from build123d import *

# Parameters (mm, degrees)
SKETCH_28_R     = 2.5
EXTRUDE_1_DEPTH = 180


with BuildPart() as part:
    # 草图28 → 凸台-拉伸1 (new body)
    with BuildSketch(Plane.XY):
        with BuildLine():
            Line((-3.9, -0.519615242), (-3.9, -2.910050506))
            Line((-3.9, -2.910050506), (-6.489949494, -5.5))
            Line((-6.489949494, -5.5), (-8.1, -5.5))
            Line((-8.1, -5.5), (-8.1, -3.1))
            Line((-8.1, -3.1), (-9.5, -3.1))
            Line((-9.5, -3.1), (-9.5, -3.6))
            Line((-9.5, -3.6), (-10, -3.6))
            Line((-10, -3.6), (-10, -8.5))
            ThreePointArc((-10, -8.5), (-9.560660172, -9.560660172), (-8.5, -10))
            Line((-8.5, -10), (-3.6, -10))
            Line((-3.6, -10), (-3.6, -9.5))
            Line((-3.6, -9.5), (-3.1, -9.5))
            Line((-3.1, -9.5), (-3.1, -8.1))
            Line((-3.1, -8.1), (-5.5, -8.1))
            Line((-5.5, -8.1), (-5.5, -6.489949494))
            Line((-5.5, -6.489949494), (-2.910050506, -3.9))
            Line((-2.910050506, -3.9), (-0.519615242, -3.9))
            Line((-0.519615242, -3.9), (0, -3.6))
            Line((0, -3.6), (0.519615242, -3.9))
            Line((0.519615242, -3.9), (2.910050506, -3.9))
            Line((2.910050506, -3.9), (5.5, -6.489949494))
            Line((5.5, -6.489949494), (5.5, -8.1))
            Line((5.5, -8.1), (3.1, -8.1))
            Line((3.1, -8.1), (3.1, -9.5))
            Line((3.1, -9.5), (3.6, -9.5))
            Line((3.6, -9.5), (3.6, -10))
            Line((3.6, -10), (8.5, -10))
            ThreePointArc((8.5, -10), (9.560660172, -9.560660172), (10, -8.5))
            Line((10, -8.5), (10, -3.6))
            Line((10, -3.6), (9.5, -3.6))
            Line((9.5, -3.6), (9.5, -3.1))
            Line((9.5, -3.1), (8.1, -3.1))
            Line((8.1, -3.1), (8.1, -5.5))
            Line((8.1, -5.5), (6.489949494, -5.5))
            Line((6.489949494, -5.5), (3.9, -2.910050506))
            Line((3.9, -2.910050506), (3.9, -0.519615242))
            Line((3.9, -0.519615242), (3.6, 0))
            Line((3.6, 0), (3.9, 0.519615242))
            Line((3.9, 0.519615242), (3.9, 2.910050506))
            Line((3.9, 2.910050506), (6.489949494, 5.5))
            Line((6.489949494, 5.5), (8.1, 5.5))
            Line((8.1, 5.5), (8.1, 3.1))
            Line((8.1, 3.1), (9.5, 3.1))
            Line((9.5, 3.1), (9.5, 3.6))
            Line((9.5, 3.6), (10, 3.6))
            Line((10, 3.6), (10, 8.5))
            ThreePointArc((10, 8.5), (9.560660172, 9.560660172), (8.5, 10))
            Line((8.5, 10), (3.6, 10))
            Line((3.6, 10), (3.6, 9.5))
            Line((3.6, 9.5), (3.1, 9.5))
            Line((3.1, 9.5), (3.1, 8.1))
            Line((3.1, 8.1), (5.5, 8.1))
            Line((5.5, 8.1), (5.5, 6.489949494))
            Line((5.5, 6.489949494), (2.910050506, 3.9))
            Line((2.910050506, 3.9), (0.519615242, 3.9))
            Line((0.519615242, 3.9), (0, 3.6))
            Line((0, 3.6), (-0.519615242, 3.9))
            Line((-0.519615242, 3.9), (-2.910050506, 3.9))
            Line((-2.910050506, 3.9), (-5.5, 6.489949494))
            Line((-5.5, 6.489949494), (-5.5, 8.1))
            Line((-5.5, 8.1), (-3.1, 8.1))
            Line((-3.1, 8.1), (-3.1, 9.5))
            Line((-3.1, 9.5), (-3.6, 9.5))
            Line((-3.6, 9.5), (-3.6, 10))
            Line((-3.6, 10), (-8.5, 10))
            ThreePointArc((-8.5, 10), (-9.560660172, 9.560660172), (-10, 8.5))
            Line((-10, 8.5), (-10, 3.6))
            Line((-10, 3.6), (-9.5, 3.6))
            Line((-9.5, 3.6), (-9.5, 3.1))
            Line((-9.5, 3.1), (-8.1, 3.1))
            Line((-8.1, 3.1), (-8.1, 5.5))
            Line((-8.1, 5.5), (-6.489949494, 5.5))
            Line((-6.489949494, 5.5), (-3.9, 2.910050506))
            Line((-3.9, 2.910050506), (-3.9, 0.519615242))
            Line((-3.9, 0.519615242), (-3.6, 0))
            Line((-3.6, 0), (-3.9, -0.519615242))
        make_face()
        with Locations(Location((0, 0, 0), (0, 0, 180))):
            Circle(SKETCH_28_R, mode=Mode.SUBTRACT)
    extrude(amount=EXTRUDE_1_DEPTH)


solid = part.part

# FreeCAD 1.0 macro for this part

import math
import FreeCAD as App
import Part
import Sketcher

V = App.Vector
Q = App.Units.Quantity

doc = App.newDocument("Part")
body = doc.addObject("PartDesign::Body", "Body")

# Sketch on XY plane
sketch1 = body.newObject("Sketcher::SketchObject", "Sketch")
sketch1.AttachmentSupport = (doc.getObject("XY_Plane"), [""])
sketch1.MapMode = "FlatFace"
sketch1.addGeometry([
    Part.LineSegment(V(-3.9, -0.5, 0), V(-3.9, -2.9, 0)),  # 0
    Part.LineSegment(V(-3.9, -2.9, 0), V(-6.5, -5.5, 0)),  # 1
    Part.LineSegment(V(-6.5, -5.5, 0), V(-8.1, -5.5, 0)),  # 2
    Part.LineSegment(V(-8.1, -5.5, 0), V(-8.1, -3.1, 0)),  # 3
    Part.LineSegment(V(-8.1, -3.1, 0), V(-9.5, -3.1, 0)),  # 4
    Part.LineSegment(V(-9.5, -3.1, 0), V(-9.5, -3.6, 0)),  # 5
    Part.LineSegment(V(-9.5, -3.6, 0), V(-10, -3.6, 0)),  # 6
    Part.LineSegment(V(-10, -3.6, 0), V(-10, -8.5, 0)),  # 7
    Part.ArcOfCircle(Part.Circle(V(-8.5, -8.5, 0), V(0, 0, 1), 1.5), math.radians(180), math.radians(270)),  # 8
    Part.LineSegment(V(-8.5, -10, 0), V(-3.6, -10, 0)),  # 9
    Part.LineSegment(V(-3.6, -10, 0), V(-3.6, -9.5, 0)),  # 10
    Part.LineSegment(V(-3.6, -9.5, 0), V(-3.1, -9.5, 0)),  # 11
    Part.LineSegment(V(-3.1, -9.5, 0), V(-3.1, -8.1, 0)),  # 12
    Part.LineSegment(V(-3.1, -8.1, 0), V(-5.5, -8.1, 0)),  # 13
    Part.LineSegment(V(-5.5, -8.1, 0), V(-5.5, -6.5, 0)),  # 14
    Part.LineSegment(V(-5.5, -6.5, 0), V(-2.9, -3.9, 0)),  # 15
    Part.LineSegment(V(-2.9, -3.9, 0), V(-0.5, -3.9, 0)),  # 16
    Part.LineSegment(V(-0.5, -3.9, 0), V(0, -3.6, 0)),  # 17
    Part.LineSegment(V(0, -3.6, 0), V(0.5, -3.9, 0)),  # 18
    Part.LineSegment(V(0.5, -3.9, 0), V(2.9, -3.9, 0)),  # 19
    Part.LineSegment(V(2.9, -3.9, 0), V(5.5, -6.5, 0)),  # 20
    Part.LineSegment(V(5.5, -6.5, 0), V(5.5, -8.1, 0)),  # 21
    Part.LineSegment(V(5.5, -8.1, 0), V(3.1, -8.1, 0)),  # 22
    Part.LineSegment(V(3.1, -8.1, 0), V(3.1, -9.5, 0)),  # 23
    Part.LineSegment(V(3.1, -9.5, 0), V(3.6, -9.5, 0)),  # 24
    Part.LineSegment(V(3.6, -9.5, 0), V(3.6, -10, 0)),  # 25
    Part.LineSegment(V(3.6, -10, 0), V(8.5, -10, 0)),  # 26
    Part.ArcOfCircle(Part.Circle(V(8.5, -8.5, 0), V(0, 0, 1), 1.5), math.radians(-90), math.radians(0)),  # 27
    Part.LineSegment(V(10, -8.5, 0), V(10, -3.6, 0)),  # 28
    Part.LineSegment(V(10, -3.6, 0), V(9.5, -3.6, 0)),  # 29
    Part.LineSegment(V(9.5, -3.6, 0), V(9.5, -3.1, 0)),  # 30
    Part.LineSegment(V(9.5, -3.1, 0), V(8.1, -3.1, 0)),  # 31
    Part.LineSegment(V(8.1, -3.1, 0), V(8.1, -5.5, 0)),  # 32
    Part.LineSegment(V(8.1, -5.5, 0), V(6.5, -5.5, 0)),  # 33
    Part.LineSegment(V(6.5, -5.5, 0), V(3.9, -2.9, 0)),  # 34
    Part.LineSegment(V(3.9, -2.9, 0), V(3.9, -0.5, 0)),  # 35
    Part.LineSegment(V(3.9, -0.5, 0), V(3.6, 0, 0)),  # 36
    Part.LineSegment(V(3.6, 0, 0), V(3.9, 0.5, 0)),  # 37
    Part.LineSegment(V(3.9, 0.5, 0), V(3.9, 2.9, 0)),  # 38
    Part.LineSegment(V(3.9, 2.9, 0), V(6.5, 5.5, 0)),  # 39
    Part.LineSegment(V(6.5, 5.5, 0), V(8.1, 5.5, 0)),  # 40
    Part.LineSegment(V(8.1, 5.5, 0), V(8.1, 3.1, 0)),  # 41
    Part.LineSegment(V(8.1, 3.1, 0), V(9.5, 3.1, 0)),  # 42
    Part.LineSegment(V(9.5, 3.1, 0), V(9.5, 3.6, 0)),  # 43
    Part.LineSegment(V(9.5, 3.6, 0), V(10, 3.6, 0)),  # 44
    Part.LineSegment(V(10, 3.6, 0), V(10, 8.5, 0)),  # 45
    Part.ArcOfCircle(Part.Circle(V(8.5, 8.5, 0), V(0, 0, 1), 1.5), math.radians(0), math.radians(90)),  # 46
    Part.LineSegment(V(8.5, 10, 0), V(3.6, 10, 0)),  # 47
    Part.LineSegment(V(3.6, 10, 0), V(3.6, 9.5, 0)),  # 48
    Part.LineSegment(V(3.6, 9.5, 0), V(3.1, 9.5, 0)),  # 49
    Part.LineSegment(V(3.1, 9.5, 0), V(3.1, 8.1, 0)),  # 50
    Part.LineSegment(V(3.1, 8.1, 0), V(5.5, 8.1, 0)),  # 51
    Part.LineSegment(V(5.5, 8.1, 0), V(5.5, 6.5, 0)),  # 52
    Part.LineSegment(V(5.5, 6.5, 0), V(2.9, 3.9, 0)),  # 53
    Part.LineSegment(V(2.9, 3.9, 0), V(0.5, 3.9, 0)),  # 54
    Part.LineSegment(V(0.5, 3.9, 0), V(0, 3.6, 0)),  # 55
    Part.LineSegment(V(0, 3.6, 0), V(-0.5, 3.9, 0)),  # 56
    Part.LineSegment(V(-0.5, 3.9, 0), V(-2.9, 3.9, 0)),  # 57
    Part.LineSegment(V(-2.9, 3.9, 0), V(-5.5, 6.5, 0)),  # 58
    Part.LineSegment(V(-5.5, 6.5, 0), V(-5.5, 8.1, 0)),  # 59
    Part.LineSegment(V(-5.5, 8.1, 0), V(-3.1, 8.1, 0)),  # 60
    Part.LineSegment(V(-3.1, 8.1, 0), V(-3.1, 9.5, 0)),  # 61
    Part.LineSegment(V(-3.1, 9.5, 0), V(-3.6, 9.5, 0)),  # 62
    Part.LineSegment(V(-3.6, 9.5, 0), V(-3.6, 10, 0)),  # 63
    Part.LineSegment(V(-3.6, 10, 0), V(-8.5, 10, 0)),  # 64
    Part.ArcOfCircle(Part.Circle(V(-8.5, 8.5, 0), V(0, 0, 1), 1.5), math.radians(90), math.radians(180)),  # 65
    Part.LineSegment(V(-10, 8.5, 0), V(-10, 3.6, 0)),  # 66
    Part.LineSegment(V(-10, 3.6, 0), V(-9.5, 3.6, 0)),  # 67
    Part.LineSegment(V(-9.5, 3.6, 0), V(-9.5, 3.1, 0)),  # 68
    Part.LineSegment(V(-9.5, 3.1, 0), V(-8.1, 3.1, 0)),  # 69
    Part.LineSegment(V(-8.1, 3.1, 0), V(-8.1, 5.5, 0)),  # 70
    Part.LineSegment(V(-8.1, 5.5, 0), V(-6.5, 5.5, 0)),  # 71
    Part.LineSegment(V(-6.5, 5.5, 0), V(-3.9, 2.9, 0)),  # 72
    Part.LineSegment(V(-3.9, 2.9, 0), V(-3.9, 0.5, 0)),  # 73
    Part.LineSegment(V(-3.9, 0.5, 0), V(-3.6, 0, 0)),  # 74
    Part.LineSegment(V(-3.6, 0, 0), V(-3.9, -0.5, 0)),  # 75
    Part.Circle(V(0, 0, 0), V(0, 0, 1), 2.5),  # 76
], False)
sketch1.addConstraint([
    Sketcher.Constraint("Coincident", 0, 2, 1, 1),
    Sketcher.Constraint("Coincident", 1, 2, 2, 1),
    Sketcher.Constraint("Coincident", 2, 2, 3, 1),
    Sketcher.Constraint("Coincident", 3, 2, 4, 1),
    Sketcher.Constraint("Coincident", 4, 2, 5, 1),
    Sketcher.Constraint("Coincident", 5, 2, 6, 1),
    Sketcher.Constraint("Coincident", 6, 2, 7, 1),
    Sketcher.Constraint("Tangent", 7, 2, 8, 1),
    Sketcher.Constraint("Tangent", 8, 2, 9, 1),
    Sketcher.Constraint("Coincident", 9, 2, 10, 1),
    Sketcher.Constraint("Coincident", 10, 2, 11, 1),
    Sketcher.Constraint("Coincident", 11, 2, 12, 1),
    Sketcher.Constraint("Coincident", 12, 2, 13, 1),
    Sketcher.Constraint("Coincident", 13, 2, 14, 1),
    Sketcher.Constraint("Coincident", 14, 2, 15, 1),
    Sketcher.Constraint("Coincident", 15, 2, 16, 1),
    Sketcher.Constraint("Coincident", 16, 2, 17, 1),
    Sketcher.Constraint("Coincident", 17, 2, 18, 1),
    Sketcher.Constraint("Coincident", 18, 2, 19, 1),
    Sketcher.Constraint("Coincident", 19, 2, 20, 1),
    Sketcher.Constraint("Coincident", 20, 2, 21, 1),
    Sketcher.Constraint("Coincident", 21, 2, 22, 1),
    Sketcher.Constraint("Coincident", 22, 2, 23, 1),
    Sketcher.Constraint("Coincident", 23, 2, 24, 1),
    Sketcher.Constraint("Coincident", 24, 2, 25, 1),
    Sketcher.Constraint("Coincident", 25, 2, 26, 1),
    Sketcher.Constraint("Tangent", 26, 2, 27, 1),
    Sketcher.Constraint("Tangent", 27, 2, 28, 1),
    Sketcher.Constraint("Coincident", 28, 2, 29, 1),
    Sketcher.Constraint("Coincident", 29, 2, 30, 1),
    Sketcher.Constraint("Coincident", 30, 2, 31, 1),
    Sketcher.Constraint("Coincident", 31, 2, 32, 1),
    Sketcher.Constraint("Coincident", 32, 2, 33, 1),
    Sketcher.Constraint("Coincident", 33, 2, 34, 1),
    Sketcher.Constraint("Coincident", 34, 2, 35, 1),
    Sketcher.Constraint("Coincident", 35, 2, 36, 1),
    Sketcher.Constraint("Coincident", 36, 2, 37, 1),
    Sketcher.Constraint("Coincident", 37, 2, 38, 1),
    Sketcher.Constraint("Coincident", 38, 2, 39, 1),
    Sketcher.Constraint("Coincident", 39, 2, 40, 1),
    Sketcher.Constraint("Coincident", 40, 2, 41, 1),
    Sketcher.Constraint("Coincident", 41, 2, 42, 1),
    Sketcher.Constraint("Coincident", 42, 2, 43, 1),
    Sketcher.Constraint("Coincident", 43, 2, 44, 1),
    Sketcher.Constraint("Coincident", 44, 2, 45, 1),
    Sketcher.Constraint("Tangent", 45, 2, 46, 1),
    Sketcher.Constraint("Tangent", 46, 2, 47, 1),
    Sketcher.Constraint("Coincident", 47, 2, 48, 1),
    Sketcher.Constraint("Coincident", 48, 2, 49, 1),
    Sketcher.Constraint("Coincident", 49, 2, 50, 1),
    Sketcher.Constraint("Coincident", 50, 2, 51, 1),
    Sketcher.Constraint("Coincident", 51, 2, 52, 1),
    Sketcher.Constraint("Coincident", 52, 2, 53, 1),
    Sketcher.Constraint("Coincident", 53, 2, 54, 1),
    Sketcher.Constraint("Coincident", 54, 2, 55, 1),
    Sketcher.Constraint("Coincident", 55, 2, 56, 1),
    Sketcher.Constraint("Coincident", 56, 2, 57, 1),
    Sketcher.Constraint("Coincident", 57, 2, 58, 1),
    Sketcher.Constraint("Coincident", 58, 2, 59, 1),
    Sketcher.Constraint("Coincident", 59, 2, 60, 1),
    Sketcher.Constraint("Coincident", 60, 2, 61, 1),
    Sketcher.Constraint("Coincident", 61, 2, 62, 1),
    Sketcher.Constraint("Coincident", 62, 2, 63, 1),
    Sketcher.Constraint("Coincident", 63, 2, 64, 1),
    Sketcher.Constraint("Tangent", 64, 2, 65, 1),
    Sketcher.Constraint("Tangent", 65, 2, 66, 1),
    Sketcher.Constraint("Coincident", 66, 2, 67, 1),
    Sketcher.Constraint("Coincident", 67, 2, 68, 1),
    Sketcher.Constraint("Coincident", 68, 2, 69, 1),
    Sketcher.Constraint("Coincident", 69, 2, 70, 1),
    Sketcher.Constraint("Coincident", 70, 2, 71, 1),
    Sketcher.Constraint("Coincident", 71, 2, 72, 1),
    Sketcher.Constraint("Coincident", 72, 2, 73, 1),
    Sketcher.Constraint("Coincident", 73, 2, 74, 1),
    Sketcher.Constraint("Coincident", 74, 2, 75, 1),
    Sketcher.Constraint("Coincident", 75, 2, 0, 1),
    Sketcher.Constraint("Vertical", 0),
    Sketcher.Constraint("Horizontal", 2),
    Sketcher.Constraint("Vertical", 3),
    Sketcher.Constraint("Horizontal", 4),
    Sketcher.Constraint("Vertical", 5),
    Sketcher.Constraint("Horizontal", 6),
    Sketcher.Constraint("Vertical", 7),
    Sketcher.Constraint("Horizontal", 9),
    Sketcher.Constraint("Vertical", 10),
    Sketcher.Constraint("Horizontal", 11),
    Sketcher.Constraint("Vertical", 12),
    Sketcher.Constraint("Horizontal", 13),
    Sketcher.Constraint("Vertical", 14),
    Sketcher.Constraint("Horizontal", 16),
    Sketcher.Constraint("Horizontal", 19),
    Sketcher.Constraint("Vertical", 21),
    Sketcher.Constraint("Horizontal", 22),
    Sketcher.Constraint("Vertical", 23),
    Sketcher.Constraint("Horizontal", 24),
    Sketcher.Constraint("Vertical", 25),
    Sketcher.Constraint("Horizontal", 26),
    Sketcher.Constraint("Vertical", 28),
    Sketcher.Constraint("Horizontal", 29),
    Sketcher.Constraint("Vertical", 30),
    Sketcher.Constraint("Horizontal", 31),
    Sketcher.Constraint("Vertical", 32),
    Sketcher.Constraint("Horizontal", 33),
    Sketcher.Constraint("Vertical", 35),
    Sketcher.Constraint("Vertical", 38),
    Sketcher.Constraint("Horizontal", 40),
    Sketcher.Constraint("Vertical", 41),
    Sketcher.Constraint("Horizontal", 42),
    Sketcher.Constraint("Vertical", 43),
    Sketcher.Constraint("Horizontal", 44),
    Sketcher.Constraint("Vertical", 45),
    Sketcher.Constraint("Horizontal", 47),
    Sketcher.Constraint("Vertical", 48),
    Sketcher.Constraint("Horizontal", 49),
    Sketcher.Constraint("Vertical", 50),
    Sketcher.Constraint("Horizontal", 51),
    Sketcher.Constraint("Vertical", 52),
    Sketcher.Constraint("Horizontal", 54),
    Sketcher.Constraint("Horizontal", 57),
    Sketcher.Constraint("Vertical", 59),
    Sketcher.Constraint("Horizontal", 60),
    Sketcher.Constraint("Vertical", 61),
    Sketcher.Constraint("Horizontal", 62),
    Sketcher.Constraint("Vertical", 63),
    Sketcher.Constraint("Horizontal", 64),
    Sketcher.Constraint("Vertical", 66),
    Sketcher.Constraint("Horizontal", 67),
    Sketcher.Constraint("Vertical", 68),
    Sketcher.Constraint("Horizontal", 69),
    Sketcher.Constraint("Vertical", 70),
    Sketcher.Constraint("Horizontal", 71),
    Sketcher.Constraint("Vertical", 73),
    Sketcher.Constraint("Coincident", 76, 3, -1, 1),
    Sketcher.Constraint("Equal", 8, 27),
    Sketcher.Constraint("Equal", 27, 46),
    Sketcher.Constraint("Equal", 46, 65),
    Sketcher.Constraint("Symmetric", 8, 3, 46, 3, -1, 1),
    Sketcher.Constraint("Symmetric", 27, 3, 65, 3, -1, 1),
    Sketcher.Constraint("Symmetric", 0, 2, 38, 2, -1, 1),
    Sketcher.Constraint("Symmetric", 1, 2, 39, 2, -1, 1),
    Sketcher.Constraint("Symmetric", 3, 2, 41, 2, -1, 1),
    Sketcher.Constraint("Symmetric", 5, 2, 43, 2, -1, 1),
    Sketcher.Constraint("Symmetric", 10, 2, 48, 2, -1, 1),
    Sketcher.Constraint("Symmetric", 12, 2, 50, 2, -1, 1),
    Sketcher.Constraint("Symmetric", 14, 2, 52, 2, -1, 1),
    Sketcher.Constraint("Symmetric", 15, 2, 53, 2, -1, 1),
    Sketcher.Constraint("Symmetric", 17, 2, 55, 2, -1, 1),
    Sketcher.Constraint("Symmetric", 18, 2, 56, 2, -1, 1),
    Sketcher.Constraint("Symmetric", 20, 2, 58, 2, -1, 1),
    Sketcher.Constraint("Symmetric", 22, 2, 60, 2, -1, 1),
    Sketcher.Constraint("Symmetric", 24, 2, 62, 2, -1, 1),
    Sketcher.Constraint("Symmetric", 29, 2, 67, 2, -1, 1),
    Sketcher.Constraint("Symmetric", 31, 2, 69, 2, -1, 1),
    Sketcher.Constraint("Symmetric", 33, 2, 71, 2, -1, 1),
    Sketcher.Constraint("Symmetric", 34, 2, 72, 2, -1, 1),
    Sketcher.Constraint("Symmetric", 36, 2, 74, 2, -1, 1),
    Sketcher.Constraint("Symmetric", 8, 3, 27, 3, -2),
    Sketcher.Constraint("Symmetric", 16, 2, 18, 2, -2),
    Sketcher.Constraint("Symmetric", 14, 2, 20, 2, -2),
    Sketcher.Constraint("Symmetric", 12, 2, 22, 2, -2),
    Sketcher.Constraint("Symmetric", 10, 2, 24, 2, -2),
    Sketcher.Constraint("Symmetric", 5, 2, 29, 2, -2),
    Sketcher.Constraint("Symmetric", 3, 2, 31, 2, -2),
    Sketcher.Constraint("Symmetric", 1, 2, 33, 2, -2),
    Sketcher.Constraint("Symmetric", 0, 2, 34, 2, -2),
    Sketcher.Constraint("PointOnObject", 17, 2, -2),
    Sketcher.Constraint("PointOnObject", 36, 2, -1),
    Sketcher.Constraint("Parallel", 1, 15),
    Sketcher.Constraint("Perpendicular", 15, 20),
    Sketcher.Constraint("Parallel", 20, 34),
    Sketcher.Constraint("Perpendicular", 17, 36),
    Sketcher.Constraint("Perpendicular", 18, 37),
    Sketcher.Constraint("Perpendicular", 36, 55),
    Sketcher.Constraint("Perpendicular", 53, 58),
    Sketcher.Constraint("Perpendicular", 55, 74),
    Sketcher.Constraint("Perpendicular", 56, 75),
    Sketcher.Constraint("Horizontal", 6, 2, 17, 2),
    Sketcher.Constraint("Vertical", 25, 2, 36, 2),
    Sketcher.Constraint("Equal", 6, 11),
    Sketcher.Constraint("Equal", 57, 0),
    Sketcher.Constraint("Equal", 60, 3),
    Sketcher.Constraint("Equal", 67, 5),
    Sketcher.Constraint("Equal", 64, 7),
    Sketcher.Constraint("Equal", 5, 10),
    Sketcher.Constraint("Equal", 69, 12),
    Sketcher.Constraint("Equal", 71, 14),
    Sketcher.Constraint("Equal", 1, 15),
    Sketcher.Constraint("Diameter", 76, Q("5 mm")),
    Sketcher.Constraint("Radius", 8, Q("1.5 mm")),
    Sketcher.Constraint("Angle", 17, Q("30 deg")),
    Sketcher.Constraint("DistanceX", 4, 2, 4, 1, Q("1.4 mm")),
    Sketcher.Constraint("DistanceX", 6, 2, 6, 1, Q("0.5 mm")),
    Sketcher.Constraint("DistanceX", 9, 1, 9, 2, Q("4.9 mm")),
    Sketcher.Constraint("DistanceX", 13, 2, 13, 1, Q("2.4 mm")),
    Sketcher.Constraint("DistanceX", 6, 2, -1, 1, Q("10 mm")),
    Sketcher.Constraint("Distance", 17, Q("0.6 mm")),
    Sketcher.Constraint("DistanceX", 2, 2, 2, 1, Q("1.610051 mm")),
])
pad1 = body.newObject("PartDesign::Pad", "Pad")
pad1.Profile = sketch1
pad1.Length = 180

doc.recompute()
